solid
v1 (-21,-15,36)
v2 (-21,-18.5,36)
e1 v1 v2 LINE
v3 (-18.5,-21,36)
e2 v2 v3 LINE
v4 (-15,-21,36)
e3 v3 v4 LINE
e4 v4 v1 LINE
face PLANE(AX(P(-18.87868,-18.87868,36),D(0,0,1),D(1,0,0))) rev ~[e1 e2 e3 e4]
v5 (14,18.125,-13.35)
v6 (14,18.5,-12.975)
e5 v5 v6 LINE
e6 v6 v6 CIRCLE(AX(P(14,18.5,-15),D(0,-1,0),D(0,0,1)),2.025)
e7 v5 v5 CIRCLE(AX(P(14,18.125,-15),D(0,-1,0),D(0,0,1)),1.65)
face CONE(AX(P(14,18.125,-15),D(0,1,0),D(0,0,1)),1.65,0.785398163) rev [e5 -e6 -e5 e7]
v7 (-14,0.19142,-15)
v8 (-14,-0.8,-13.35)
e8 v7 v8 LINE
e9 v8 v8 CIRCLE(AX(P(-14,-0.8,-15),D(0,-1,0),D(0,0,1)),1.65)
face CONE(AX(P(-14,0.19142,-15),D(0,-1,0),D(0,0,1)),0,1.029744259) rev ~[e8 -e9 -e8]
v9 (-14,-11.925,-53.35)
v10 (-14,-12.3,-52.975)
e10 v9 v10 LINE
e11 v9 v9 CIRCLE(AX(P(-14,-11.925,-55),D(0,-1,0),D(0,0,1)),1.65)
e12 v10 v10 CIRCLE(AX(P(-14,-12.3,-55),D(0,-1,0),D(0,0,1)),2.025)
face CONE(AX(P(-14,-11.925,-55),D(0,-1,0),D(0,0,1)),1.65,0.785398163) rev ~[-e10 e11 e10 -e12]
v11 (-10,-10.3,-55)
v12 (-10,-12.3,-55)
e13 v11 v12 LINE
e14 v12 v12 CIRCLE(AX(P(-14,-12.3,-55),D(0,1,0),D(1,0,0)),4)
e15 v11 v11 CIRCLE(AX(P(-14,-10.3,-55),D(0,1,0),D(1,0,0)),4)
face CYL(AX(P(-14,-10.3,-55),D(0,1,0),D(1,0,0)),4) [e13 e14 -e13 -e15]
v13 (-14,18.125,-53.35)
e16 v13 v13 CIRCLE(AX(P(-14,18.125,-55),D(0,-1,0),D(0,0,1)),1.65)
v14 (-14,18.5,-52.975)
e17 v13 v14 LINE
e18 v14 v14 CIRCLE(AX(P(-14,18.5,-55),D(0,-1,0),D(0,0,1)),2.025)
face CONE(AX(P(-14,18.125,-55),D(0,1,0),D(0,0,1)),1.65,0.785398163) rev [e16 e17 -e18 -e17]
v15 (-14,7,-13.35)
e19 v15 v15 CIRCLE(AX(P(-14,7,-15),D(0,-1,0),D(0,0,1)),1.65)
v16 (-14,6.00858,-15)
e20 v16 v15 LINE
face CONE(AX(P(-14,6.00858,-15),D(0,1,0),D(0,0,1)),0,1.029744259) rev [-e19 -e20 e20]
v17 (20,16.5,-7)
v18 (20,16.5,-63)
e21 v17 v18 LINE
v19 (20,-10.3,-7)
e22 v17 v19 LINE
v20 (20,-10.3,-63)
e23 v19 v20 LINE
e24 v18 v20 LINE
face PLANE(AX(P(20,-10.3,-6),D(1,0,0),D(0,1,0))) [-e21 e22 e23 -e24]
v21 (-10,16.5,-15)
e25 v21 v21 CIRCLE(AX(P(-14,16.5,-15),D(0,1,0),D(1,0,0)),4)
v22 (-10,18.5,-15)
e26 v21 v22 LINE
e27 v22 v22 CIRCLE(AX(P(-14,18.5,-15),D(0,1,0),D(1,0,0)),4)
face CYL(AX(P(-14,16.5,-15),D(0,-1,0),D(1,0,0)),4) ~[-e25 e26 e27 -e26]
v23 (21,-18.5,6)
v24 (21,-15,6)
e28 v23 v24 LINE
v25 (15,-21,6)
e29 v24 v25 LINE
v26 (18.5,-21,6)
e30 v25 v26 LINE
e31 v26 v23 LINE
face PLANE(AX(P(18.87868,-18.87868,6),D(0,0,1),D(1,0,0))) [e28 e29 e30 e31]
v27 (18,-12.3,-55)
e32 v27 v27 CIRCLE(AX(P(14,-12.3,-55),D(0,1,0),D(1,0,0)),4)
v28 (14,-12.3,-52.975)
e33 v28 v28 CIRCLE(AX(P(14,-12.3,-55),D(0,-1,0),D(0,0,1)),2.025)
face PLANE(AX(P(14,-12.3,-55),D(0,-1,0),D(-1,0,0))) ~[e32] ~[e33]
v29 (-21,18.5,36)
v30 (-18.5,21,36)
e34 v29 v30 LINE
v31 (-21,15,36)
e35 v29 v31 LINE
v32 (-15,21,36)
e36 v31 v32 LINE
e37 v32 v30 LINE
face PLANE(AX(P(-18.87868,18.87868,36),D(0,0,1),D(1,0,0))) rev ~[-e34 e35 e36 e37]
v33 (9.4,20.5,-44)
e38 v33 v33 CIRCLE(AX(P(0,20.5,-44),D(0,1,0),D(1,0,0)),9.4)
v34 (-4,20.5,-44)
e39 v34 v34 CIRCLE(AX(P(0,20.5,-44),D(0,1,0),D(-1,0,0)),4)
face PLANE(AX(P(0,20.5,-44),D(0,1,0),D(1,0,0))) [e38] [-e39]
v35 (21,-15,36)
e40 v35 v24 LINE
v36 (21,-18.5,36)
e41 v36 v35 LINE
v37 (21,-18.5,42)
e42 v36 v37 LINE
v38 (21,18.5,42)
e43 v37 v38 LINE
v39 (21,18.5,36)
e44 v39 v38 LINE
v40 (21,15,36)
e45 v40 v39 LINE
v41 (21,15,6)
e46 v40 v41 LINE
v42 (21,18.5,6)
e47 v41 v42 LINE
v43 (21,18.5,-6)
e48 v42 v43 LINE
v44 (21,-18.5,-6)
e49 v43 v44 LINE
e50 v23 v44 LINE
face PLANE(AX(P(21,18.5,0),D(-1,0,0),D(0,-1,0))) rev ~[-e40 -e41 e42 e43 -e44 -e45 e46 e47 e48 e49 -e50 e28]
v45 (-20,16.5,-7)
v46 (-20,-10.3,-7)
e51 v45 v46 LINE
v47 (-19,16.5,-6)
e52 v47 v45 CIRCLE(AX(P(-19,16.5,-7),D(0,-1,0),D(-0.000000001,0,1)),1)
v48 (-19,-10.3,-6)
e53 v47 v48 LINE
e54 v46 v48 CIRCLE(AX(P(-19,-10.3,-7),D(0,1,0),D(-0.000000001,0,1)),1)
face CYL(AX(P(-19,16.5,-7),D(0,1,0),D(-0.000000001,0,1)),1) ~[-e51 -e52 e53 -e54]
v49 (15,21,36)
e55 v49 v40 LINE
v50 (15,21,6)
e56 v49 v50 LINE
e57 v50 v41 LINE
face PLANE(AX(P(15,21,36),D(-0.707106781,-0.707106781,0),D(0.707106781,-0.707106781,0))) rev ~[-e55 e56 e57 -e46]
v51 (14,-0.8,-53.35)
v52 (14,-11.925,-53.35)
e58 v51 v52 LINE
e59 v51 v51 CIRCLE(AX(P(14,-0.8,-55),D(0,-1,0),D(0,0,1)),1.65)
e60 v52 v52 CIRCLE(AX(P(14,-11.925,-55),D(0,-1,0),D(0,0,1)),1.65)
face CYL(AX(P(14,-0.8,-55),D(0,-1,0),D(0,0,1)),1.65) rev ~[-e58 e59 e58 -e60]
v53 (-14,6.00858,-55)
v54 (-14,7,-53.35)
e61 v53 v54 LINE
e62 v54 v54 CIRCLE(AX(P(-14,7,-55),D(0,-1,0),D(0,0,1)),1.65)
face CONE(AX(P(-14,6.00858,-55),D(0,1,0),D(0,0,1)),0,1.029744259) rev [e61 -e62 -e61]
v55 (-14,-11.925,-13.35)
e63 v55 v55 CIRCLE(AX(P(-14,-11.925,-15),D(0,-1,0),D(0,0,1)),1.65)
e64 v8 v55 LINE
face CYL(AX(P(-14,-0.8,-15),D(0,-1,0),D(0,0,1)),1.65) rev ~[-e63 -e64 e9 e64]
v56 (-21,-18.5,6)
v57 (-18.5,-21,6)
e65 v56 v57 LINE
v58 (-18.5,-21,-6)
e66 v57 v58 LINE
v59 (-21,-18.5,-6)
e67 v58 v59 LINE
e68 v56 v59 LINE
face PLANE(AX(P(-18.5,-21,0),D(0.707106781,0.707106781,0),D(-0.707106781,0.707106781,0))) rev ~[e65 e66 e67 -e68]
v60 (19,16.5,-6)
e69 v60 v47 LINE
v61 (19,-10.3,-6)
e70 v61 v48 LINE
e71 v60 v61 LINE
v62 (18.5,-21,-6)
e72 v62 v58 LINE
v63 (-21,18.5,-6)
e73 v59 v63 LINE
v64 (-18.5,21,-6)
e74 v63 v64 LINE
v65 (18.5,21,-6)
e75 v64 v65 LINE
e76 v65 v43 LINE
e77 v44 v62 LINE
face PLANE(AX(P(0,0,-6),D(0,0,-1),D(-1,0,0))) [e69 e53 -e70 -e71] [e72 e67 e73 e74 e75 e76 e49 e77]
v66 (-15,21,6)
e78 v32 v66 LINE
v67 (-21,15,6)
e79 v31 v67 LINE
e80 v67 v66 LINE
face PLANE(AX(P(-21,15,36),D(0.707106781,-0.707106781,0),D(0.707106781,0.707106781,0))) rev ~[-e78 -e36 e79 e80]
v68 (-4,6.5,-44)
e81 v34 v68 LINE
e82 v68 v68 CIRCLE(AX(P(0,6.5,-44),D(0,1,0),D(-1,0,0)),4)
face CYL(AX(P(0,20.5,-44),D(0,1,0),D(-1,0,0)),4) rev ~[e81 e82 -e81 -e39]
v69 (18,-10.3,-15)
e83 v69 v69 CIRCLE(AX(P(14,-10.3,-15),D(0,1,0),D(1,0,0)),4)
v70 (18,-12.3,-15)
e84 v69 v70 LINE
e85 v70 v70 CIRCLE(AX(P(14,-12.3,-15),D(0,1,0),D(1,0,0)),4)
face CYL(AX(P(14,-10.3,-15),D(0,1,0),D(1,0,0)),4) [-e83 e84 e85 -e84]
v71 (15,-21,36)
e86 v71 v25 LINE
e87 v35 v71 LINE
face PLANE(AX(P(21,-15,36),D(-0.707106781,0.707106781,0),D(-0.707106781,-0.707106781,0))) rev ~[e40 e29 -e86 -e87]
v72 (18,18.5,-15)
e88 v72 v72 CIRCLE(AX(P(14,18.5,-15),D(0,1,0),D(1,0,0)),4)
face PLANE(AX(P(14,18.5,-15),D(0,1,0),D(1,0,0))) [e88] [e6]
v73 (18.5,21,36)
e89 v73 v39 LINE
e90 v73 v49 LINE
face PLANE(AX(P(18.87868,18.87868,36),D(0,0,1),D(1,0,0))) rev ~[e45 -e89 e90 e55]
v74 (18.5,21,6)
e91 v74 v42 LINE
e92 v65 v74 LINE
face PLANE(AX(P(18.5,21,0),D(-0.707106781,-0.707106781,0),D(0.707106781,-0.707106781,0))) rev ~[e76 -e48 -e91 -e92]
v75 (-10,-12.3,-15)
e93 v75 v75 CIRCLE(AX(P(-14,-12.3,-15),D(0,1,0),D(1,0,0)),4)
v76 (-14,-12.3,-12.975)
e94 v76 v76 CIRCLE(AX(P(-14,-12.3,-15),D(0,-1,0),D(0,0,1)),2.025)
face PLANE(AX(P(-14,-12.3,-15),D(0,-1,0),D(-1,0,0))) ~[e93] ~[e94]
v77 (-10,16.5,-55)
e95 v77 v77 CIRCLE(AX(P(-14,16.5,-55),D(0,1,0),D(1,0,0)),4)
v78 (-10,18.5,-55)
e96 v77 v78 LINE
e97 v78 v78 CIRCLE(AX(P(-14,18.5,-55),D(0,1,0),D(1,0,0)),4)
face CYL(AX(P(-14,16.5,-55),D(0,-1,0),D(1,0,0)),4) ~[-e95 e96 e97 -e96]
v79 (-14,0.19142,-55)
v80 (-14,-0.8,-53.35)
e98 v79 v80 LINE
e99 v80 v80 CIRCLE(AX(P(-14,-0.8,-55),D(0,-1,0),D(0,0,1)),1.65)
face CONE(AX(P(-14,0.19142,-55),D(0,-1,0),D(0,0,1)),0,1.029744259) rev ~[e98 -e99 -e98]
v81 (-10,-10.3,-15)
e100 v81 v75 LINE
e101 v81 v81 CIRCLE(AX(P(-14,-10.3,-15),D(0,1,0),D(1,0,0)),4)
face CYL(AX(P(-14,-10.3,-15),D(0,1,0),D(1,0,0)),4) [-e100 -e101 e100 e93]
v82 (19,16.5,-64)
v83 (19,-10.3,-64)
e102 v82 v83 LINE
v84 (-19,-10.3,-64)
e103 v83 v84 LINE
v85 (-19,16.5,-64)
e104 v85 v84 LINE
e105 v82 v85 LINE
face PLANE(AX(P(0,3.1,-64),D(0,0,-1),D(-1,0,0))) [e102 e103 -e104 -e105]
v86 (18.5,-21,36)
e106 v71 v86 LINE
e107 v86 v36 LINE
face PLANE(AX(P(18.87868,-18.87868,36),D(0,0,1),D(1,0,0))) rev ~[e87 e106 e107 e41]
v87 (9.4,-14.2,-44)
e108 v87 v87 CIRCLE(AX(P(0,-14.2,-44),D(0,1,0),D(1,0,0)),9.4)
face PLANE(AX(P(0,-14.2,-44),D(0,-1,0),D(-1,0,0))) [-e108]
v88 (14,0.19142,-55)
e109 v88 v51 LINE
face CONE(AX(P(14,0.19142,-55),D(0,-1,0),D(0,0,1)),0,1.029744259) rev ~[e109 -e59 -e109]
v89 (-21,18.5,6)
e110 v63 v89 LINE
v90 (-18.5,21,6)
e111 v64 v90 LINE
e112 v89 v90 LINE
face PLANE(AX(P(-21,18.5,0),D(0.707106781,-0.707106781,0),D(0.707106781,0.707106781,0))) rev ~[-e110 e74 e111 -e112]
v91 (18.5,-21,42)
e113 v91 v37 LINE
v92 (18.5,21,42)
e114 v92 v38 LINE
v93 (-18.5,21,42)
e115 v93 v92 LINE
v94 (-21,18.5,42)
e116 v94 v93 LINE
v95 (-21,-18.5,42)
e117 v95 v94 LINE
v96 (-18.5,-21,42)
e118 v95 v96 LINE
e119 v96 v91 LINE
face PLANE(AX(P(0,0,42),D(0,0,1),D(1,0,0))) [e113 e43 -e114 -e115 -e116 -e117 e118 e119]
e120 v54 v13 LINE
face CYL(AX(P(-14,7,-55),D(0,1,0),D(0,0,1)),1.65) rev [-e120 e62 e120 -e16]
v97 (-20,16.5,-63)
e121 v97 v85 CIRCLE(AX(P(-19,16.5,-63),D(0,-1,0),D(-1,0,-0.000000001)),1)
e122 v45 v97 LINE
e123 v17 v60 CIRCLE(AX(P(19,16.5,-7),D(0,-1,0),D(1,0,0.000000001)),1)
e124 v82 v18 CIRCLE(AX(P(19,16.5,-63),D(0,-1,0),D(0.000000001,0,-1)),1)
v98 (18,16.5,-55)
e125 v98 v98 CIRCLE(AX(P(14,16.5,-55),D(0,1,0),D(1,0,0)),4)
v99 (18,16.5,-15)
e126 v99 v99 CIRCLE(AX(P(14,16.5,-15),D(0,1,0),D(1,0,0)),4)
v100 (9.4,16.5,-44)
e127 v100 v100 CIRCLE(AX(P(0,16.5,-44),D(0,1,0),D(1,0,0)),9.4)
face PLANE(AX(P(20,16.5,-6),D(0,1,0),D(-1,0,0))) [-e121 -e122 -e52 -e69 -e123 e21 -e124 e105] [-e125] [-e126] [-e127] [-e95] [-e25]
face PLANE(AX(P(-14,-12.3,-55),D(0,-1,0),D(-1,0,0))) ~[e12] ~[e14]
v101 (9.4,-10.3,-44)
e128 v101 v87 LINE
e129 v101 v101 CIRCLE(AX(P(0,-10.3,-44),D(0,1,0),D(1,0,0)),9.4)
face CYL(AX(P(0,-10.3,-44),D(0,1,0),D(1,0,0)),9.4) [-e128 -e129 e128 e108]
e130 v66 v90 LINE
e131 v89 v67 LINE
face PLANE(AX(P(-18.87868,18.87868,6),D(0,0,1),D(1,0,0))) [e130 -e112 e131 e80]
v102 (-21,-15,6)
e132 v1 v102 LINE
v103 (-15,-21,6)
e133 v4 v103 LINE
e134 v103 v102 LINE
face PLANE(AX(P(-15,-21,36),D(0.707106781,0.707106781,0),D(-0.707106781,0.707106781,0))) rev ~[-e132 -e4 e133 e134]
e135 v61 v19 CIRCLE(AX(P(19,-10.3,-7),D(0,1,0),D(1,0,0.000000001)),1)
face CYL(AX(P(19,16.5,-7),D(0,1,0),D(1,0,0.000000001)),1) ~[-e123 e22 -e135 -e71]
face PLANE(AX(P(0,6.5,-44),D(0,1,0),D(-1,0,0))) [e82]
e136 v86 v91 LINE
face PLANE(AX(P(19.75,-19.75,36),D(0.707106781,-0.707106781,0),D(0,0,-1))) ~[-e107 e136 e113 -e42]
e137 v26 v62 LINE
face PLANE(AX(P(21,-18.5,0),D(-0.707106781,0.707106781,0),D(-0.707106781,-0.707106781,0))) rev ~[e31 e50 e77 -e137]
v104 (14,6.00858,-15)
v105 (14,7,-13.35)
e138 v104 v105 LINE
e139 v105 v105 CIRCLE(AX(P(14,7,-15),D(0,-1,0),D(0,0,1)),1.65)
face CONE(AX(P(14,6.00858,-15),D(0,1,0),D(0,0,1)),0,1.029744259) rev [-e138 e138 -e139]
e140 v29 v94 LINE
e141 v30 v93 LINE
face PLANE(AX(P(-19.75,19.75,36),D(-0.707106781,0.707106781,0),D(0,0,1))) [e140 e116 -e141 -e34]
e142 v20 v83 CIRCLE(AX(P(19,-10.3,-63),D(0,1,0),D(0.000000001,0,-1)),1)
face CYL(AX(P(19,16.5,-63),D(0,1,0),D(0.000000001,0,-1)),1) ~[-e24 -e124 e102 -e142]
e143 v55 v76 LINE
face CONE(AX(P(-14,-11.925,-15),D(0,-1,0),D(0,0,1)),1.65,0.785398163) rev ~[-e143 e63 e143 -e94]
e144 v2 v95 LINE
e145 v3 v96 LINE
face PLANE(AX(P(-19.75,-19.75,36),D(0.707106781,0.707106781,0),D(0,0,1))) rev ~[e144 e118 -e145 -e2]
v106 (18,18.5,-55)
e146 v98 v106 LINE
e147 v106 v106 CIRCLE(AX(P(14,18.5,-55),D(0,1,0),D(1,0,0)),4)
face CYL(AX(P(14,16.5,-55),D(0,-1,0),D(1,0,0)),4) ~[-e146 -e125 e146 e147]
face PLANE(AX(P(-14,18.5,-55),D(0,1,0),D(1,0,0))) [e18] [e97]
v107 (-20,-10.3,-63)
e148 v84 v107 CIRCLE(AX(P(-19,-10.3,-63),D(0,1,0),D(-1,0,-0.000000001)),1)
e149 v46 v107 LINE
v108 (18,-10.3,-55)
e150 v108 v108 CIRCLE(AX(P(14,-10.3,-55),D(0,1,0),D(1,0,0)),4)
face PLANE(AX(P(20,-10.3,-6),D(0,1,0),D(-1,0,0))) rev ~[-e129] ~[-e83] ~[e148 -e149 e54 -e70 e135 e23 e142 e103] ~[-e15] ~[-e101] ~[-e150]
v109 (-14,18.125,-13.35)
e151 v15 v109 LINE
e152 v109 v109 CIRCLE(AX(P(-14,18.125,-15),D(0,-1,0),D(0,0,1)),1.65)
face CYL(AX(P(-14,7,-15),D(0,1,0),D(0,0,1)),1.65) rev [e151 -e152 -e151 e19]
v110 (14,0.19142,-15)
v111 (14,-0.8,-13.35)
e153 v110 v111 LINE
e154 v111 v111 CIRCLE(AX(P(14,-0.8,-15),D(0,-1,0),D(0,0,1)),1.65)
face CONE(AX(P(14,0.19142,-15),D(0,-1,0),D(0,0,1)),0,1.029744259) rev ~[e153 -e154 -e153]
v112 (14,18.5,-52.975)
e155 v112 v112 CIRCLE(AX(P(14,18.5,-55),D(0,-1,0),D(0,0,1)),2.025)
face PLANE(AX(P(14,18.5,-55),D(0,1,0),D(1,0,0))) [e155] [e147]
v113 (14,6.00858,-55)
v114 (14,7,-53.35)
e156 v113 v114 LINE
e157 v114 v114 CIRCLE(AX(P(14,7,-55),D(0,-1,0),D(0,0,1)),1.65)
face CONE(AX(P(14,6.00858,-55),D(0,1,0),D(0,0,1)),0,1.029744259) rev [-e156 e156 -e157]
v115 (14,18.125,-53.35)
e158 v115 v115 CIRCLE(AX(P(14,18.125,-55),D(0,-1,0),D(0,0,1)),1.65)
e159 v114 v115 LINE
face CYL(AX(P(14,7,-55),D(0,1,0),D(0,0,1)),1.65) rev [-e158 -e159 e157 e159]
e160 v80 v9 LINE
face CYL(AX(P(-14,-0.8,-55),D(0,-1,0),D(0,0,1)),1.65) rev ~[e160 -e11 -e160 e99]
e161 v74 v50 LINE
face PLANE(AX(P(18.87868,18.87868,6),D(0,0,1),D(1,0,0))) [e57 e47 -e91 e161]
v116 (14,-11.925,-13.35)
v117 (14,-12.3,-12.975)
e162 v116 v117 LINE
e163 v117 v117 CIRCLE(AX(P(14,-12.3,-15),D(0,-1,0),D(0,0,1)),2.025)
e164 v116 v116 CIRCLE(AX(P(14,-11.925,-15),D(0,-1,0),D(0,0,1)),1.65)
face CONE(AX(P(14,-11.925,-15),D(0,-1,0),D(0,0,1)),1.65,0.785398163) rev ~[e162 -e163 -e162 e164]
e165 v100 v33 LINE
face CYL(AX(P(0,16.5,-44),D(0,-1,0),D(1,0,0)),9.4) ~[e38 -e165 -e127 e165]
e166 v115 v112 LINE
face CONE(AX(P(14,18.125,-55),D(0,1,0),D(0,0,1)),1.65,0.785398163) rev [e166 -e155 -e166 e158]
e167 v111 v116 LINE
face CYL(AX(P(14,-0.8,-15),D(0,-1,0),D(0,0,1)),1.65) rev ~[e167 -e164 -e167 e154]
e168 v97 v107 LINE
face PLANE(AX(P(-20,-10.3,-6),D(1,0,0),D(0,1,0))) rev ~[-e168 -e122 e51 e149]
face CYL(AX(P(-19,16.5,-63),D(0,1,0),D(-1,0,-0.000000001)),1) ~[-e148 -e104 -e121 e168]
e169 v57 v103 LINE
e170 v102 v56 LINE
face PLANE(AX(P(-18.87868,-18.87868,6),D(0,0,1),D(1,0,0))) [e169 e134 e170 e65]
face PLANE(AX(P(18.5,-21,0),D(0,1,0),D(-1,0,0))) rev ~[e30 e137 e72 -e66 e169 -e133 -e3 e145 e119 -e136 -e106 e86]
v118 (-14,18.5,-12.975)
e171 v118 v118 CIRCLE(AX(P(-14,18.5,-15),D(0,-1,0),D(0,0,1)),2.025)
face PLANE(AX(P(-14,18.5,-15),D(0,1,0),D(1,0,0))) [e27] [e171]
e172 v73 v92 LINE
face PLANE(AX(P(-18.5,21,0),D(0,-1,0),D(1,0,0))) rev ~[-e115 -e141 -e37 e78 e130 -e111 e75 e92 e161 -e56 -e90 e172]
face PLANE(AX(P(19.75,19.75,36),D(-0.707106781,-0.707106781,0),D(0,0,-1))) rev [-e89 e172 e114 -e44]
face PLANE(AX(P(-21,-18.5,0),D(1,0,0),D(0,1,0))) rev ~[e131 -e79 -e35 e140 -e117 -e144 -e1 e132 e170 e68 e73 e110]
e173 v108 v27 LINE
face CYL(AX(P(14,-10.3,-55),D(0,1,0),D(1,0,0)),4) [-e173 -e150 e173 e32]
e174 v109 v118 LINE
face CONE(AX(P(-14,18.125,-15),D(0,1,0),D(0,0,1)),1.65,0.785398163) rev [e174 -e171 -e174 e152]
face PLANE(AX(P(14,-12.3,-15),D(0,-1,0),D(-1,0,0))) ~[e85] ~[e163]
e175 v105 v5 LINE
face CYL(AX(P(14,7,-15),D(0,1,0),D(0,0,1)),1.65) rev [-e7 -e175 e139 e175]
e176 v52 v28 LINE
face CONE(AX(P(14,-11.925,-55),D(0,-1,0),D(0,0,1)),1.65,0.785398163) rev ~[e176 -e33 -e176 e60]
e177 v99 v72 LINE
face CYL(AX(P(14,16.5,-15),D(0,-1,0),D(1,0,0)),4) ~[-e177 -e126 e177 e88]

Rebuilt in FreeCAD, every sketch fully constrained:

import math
import FreeCAD as App
import Part
import Sketcher
Q = App.Units.Quantity


def edges_at(feature, points):
    """Names of the edges that pass closest to the given points."""
    edges = feature.Shape.Edges
    near = lambda p: min(range(len(edges)), key=lambda i: edges[i].distToShape(Part.Vertex(*p))[0])
    return sorted({f"Edge{near(p) + 1}" for p in points})

doc = App.newDocument("Part")
params = doc.addObject("Spreadsheet::Sheet", "Params")
for row, (alias, value) in enumerate([
    ("sketch1_width", "42 mm"),
    ("pad1_length", "42 mm"),
    ("sketch2_width", "6 mm"),
    ("pocket1_length", "30 mm"),
    ("chamfer_size", "2.5 mm"),
    ("sketch3_width", "37 mm"),
    ("pad2_length", "6 mm"),
    ("sketch4_width", "40 mm"),
    ("sketch4_height", "26.8 mm"),
    ("pad3_length", "58 mm"),
    ("sketch5_radius", "1 mm"),
    ("pocket2_length", "58 mm"),
    ("sketch6_diameter", "18.8 mm"),
    ("pad4_length", "4 mm"),
    ("sketch7_diameter", "8 mm"),
    ("pad5_length", "2 mm"),
    ("sketch8_diameter", "8 mm"),
    ("pocket3_length", "14 mm"),
    ("groove_angle", "360 deg"),
    ("linearpattern_pitch", "28 mm"),
    ("linearpattern2_pitch", "48.826222 mm"),
    ("linearpattern3_pitch", "40 mm"),
    ("groove2_angle", "360 deg"),
    ("groove3_angle", "360 deg"),
    ("groove4_angle", "360 deg"),
    ("sketch13_diameter", "18.8 mm"),
    ("pocket4_length", "0.1 mm"),
], start=1):
    params.set(f"A{row}", alias)
    params.set(f"B{row}", "=" + value)
    params.setAlias(f"B{row}", alias)

body = doc.addObject("PartDesign::Body", "Body")

# Sketch on XY plane
sketch1 = body.newObject("Sketcher::SketchObject", "Sketch")
sketch1.AttachmentSupport = (doc.getObject("XY_Plane"), [""])
sketch1.MapMode = "FlatFace"
sketch1.addGeometry(Part.LineSegment(App.Vector(-21, 21, 0), App.Vector(-21, -21, 0)), False)
sketch1.addGeometry(Part.LineSegment(App.Vector(-21, -21, 0), App.Vector(21, -21, 0)), False)
sketch1.addGeometry(Part.LineSegment(App.Vector(21, -21, 0), App.Vector(21, 21, 0)), False)
sketch1.addGeometry(Part.LineSegment(App.Vector(21, 21, 0), App.Vector(-21, 21, 0)), False)
sketch1.addConstraint(Sketcher.Constraint("Coincident", 0, 2, 1, 1))
sketch1.addConstraint(Sketcher.Constraint("Coincident", 1, 2, 2, 1))
sketch1.addConstraint(Sketcher.Constraint("Coincident", 2, 2, 3, 1))
sketch1.addConstraint(Sketcher.Constraint("Coincident", 3, 2, 0, 1))
sketch1.addConstraint(Sketcher.Constraint("Vertical", 0))
sketch1.addConstraint(Sketcher.Constraint("Horizontal", 1))
sketch1.addConstraint(Sketcher.Constraint("Vertical", 2))
sketch1.addConstraint(Sketcher.Constraint("Horizontal", 3))
sketch1.addConstraint(Sketcher.Constraint("Symmetric", 0, 2, 2, 2, -1, 1))
sketch1.addConstraint(Sketcher.Constraint("Equal", 3, 0))
sketch1.addConstraint(Sketcher.Constraint("DistanceX", 1, 1, 1, 2, Q("42 mm")))
sketch1.setExpression("Constraints[10]", "Params.sketch1_width")
pad1 = body.newObject("PartDesign::Pad", "Pad")
pad1.Profile = sketch1
pad1.setExpression("Length", "Params.pad1_length")

# Sketch on XY plane
sketch2 = body.newObject("Sketcher::SketchObject", "Sketch001")
sketch2.AttachmentSupport = (doc.getObject("XY_Plane"), [""])
sketch2.MapMode = "FlatFace"
sketch2.AttachmentOffset = App.Placement(App.Vector(0, 0, 36), App.Rotation())
sketch2.addGeometry(Part.LineSegment(App.Vector(-21, -21, 0), App.Vector(-15, -21, 0)), False)
sketch2.addGeometry(Part.LineSegment(App.Vector(-15, -21, 0), App.Vector(-21, -15, 0)), False)
sketch2.addGeometry(Part.LineSegment(App.Vector(-21, -15, 0), App.Vector(-21, -21, 0)), False)
sketch2.addGeometry(Part.LineSegment(App.Vector(-21, 21, 0), App.Vector(-21, 15, 0)), False)
sketch2.addGeometry(Part.LineSegment(App.Vector(-21, 15, 0), App.Vector(-15, 21, 0)), False)
sketch2.addGeometry(Part.LineSegment(App.Vector(-15, 21, 0), App.Vector(-21, 21, 0)), False)
sketch2.addGeometry(Part.LineSegment(App.Vector(21, 21, 0), App.Vector(15, 21, 0)), False)
sketch2.addGeometry(Part.LineSegment(App.Vector(15, 21, 0), App.Vector(21, 15, 0)), False)
sketch2.addGeometry(Part.LineSegment(App.Vector(21, 15, 0), App.Vector(21, 21, 0)), False)
sketch2.addGeometry(Part.LineSegment(App.Vector(21, -21, 0), App.Vector(21, -15, 0)), False)
sketch2.addGeometry(Part.LineSegment(App.Vector(21, -15, 0), App.Vector(15, -21, 0)), False)
sketch2.addGeometry(Part.LineSegment(App.Vector(15, -21, 0), App.Vector(21, -21, 0)), False)
sketch2.addConstraint(Sketcher.Constraint("Coincident", 0, 2, 1, 1))
sketch2.addConstraint(Sketcher.Constraint("Coincident", 1, 2, 2, 1))
sketch2.addConstraint(Sketcher.Constraint("Coincident", 2, 2, 0, 1))
sketch2.addConstraint(Sketcher.Constraint("Coincident", 3, 2, 4, 1))
sketch2.addConstraint(Sketcher.Constraint("Coincident", 4, 2, 5, 1))
sketch2.addConstraint(Sketcher.Constraint("Coincident", 5, 2, 3, 1))
sketch2.addConstraint(Sketcher.Constraint("Coincident", 6, 2, 7, 1))
sketch2.addConstraint(Sketcher.Constraint("Coincident", 7, 2, 8, 1))
sketch2.addConstraint(Sketcher.Constraint("Coincident", 8, 2, 6, 1))
sketch2.addConstraint(Sketcher.Constraint("Coincident", 9, 2, 10, 1))
sketch2.addConstraint(Sketcher.Constraint("Coincident", 10, 2, 11, 1))
sketch2.addConstraint(Sketcher.Constraint("Coincident", 11, 2, 9, 1))
sketch2.addConstraint(Sketcher.Constraint("Horizontal", 0))
sketch2.addConstraint(Sketcher.Constraint("Vertical", 2))
sketch2.addConstraint(Sketcher.Constraint("Vertical", 3))
sketch2.addConstraint(Sketcher.Constraint("Horizontal", 5))
sketch2.addConstraint(Sketcher.Constraint("Horizontal", 6))
sketch2.addConstraint(Sketcher.Constraint("Vertical", 8))
sketch2.addConstraint(Sketcher.Constraint("Vertical", 9))
sketch2.addConstraint(Sketcher.Constraint("Horizontal", 11))
sketch2.addConstraint(Sketcher.Constraint("Symmetric", 0, 2, 6, 2, -1, 1))
sketch2.addConstraint(Sketcher.Constraint("Symmetric", 1, 2, 7, 2, -1, 1))
sketch2.addConstraint(Sketcher.Constraint("Symmetric", 3, 2, 9, 2, -1, 1))
sketch2.addConstraint(Sketcher.Constraint("Symmetric", 4, 2, 10, 2, -1, 1))
sketch2.addConstraint(Sketcher.Constraint("Symmetric", 4, 2, 6, 2, -2))
sketch2.addConstraint(Sketcher.Constraint("Symmetric", 3, 2, 7, 2, -2))
sketch2.addConstraint(Sketcher.Constraint("Perpendicular", 1, 4))
sketch2.addConstraint(Sketcher.Constraint("DistanceX", 0, 1, 0, 2, Q("6 mm")))
sketch2.addConstraint(Sketcher.Constraint("DistanceX", 0, 2, -1, 1, Q("15 mm")))
sketch2.addConstraint(Sketcher.Constraint("DistanceY", 0, 2, -1, 1, Q("21 mm")))
sketch2.setExpression("Constraints[27]", "Params.sketch2_width")
pocket1 = body.newObject("PartDesign::Pocket", "Pocket")
pocket1.Profile = sketch2
pocket1.setExpression("Length", "Params.pocket1_length")
doc.recompute()

chamfer = body.newObject("PartDesign::Chamfer", "Chamfer")
chamfer.Base = (pocket1, edges_at(pocket1, [
    (21, -21, 3),
    (-21, -21, 3),
    (21, 21, 3),
    (-21, 21, 3),
    (21, -21, 39),
    (-21, -21, 39),
    (-21, 21, 39),
    (21, 21, 39),
]))
chamfer.setExpression("Size", "Params.chamfer_size")

# Sketch on XY plane
sketch3 = body.newObject("Sketcher::SketchObject", "Sketch002")
sketch3.AttachmentSupport = (doc.getObject("XY_Plane"), [""])
sketch3.MapMode = "FlatFace"
sketch3.addGeometry(Part.LineSegment(App.Vector(18.5, 21, 0), App.Vector(21, 18.5, 0)), False)
sketch3.addGeometry(Part.LineSegment(App.Vector(21, 18.5, 0), App.Vector(21, -18.5, 0)), False)
sketch3.addGeometry(Part.LineSegment(App.Vector(21, -18.5, 0), App.Vector(18.5, -21, 0)), False)
sketch3.addGeometry(Part.LineSegment(App.Vector(18.5, -21, 0), App.Vector(-18.5, -21, 0)), False)
sketch3.addGeometry(Part.LineSegment(App.Vector(-18.5, -21, 0), App.Vector(-21, -18.5, 0)), False)
sketch3.addGeometry(Part.LineSegment(App.Vector(-21, -18.5, 0), App.Vector(-21, 18.5, 0)), False)
sketch3.addGeometry(Part.LineSegment(App.Vector(-21, 18.5, 0), App.Vector(-18.5, 21, 0)), False)
sketch3.addGeometry(Part.LineSegment(App.Vector(-18.5, 21, 0), App.Vector(18.5, 21, 0)), False)
sketch3.addConstraint(Sketcher.Constraint("Coincident", 0, 2, 1, 1))
sketch3.addConstraint(Sketcher.Constraint("Coincident", 1, 2, 2, 1))
sketch3.addConstraint(Sketcher.Constraint("Coincident", 2, 2, 3, 1))
sketch3.addConstraint(Sketcher.Constraint("Coincident", 3, 2, 4, 1))
sketch3.addConstraint(Sketcher.Constraint("Coincident", 4, 2, 5, 1))
sketch3.addConstraint(Sketcher.Constraint("Coincident", 5, 2, 6, 1))
sketch3.addConstraint(Sketcher.Constraint("Coincident", 6, 2, 7, 1))
sketch3.addConstraint(Sketcher.Constraint("Coincident", 7, 2, 0, 1))
sketch3.addConstraint(Sketcher.Constraint("Vertical", 1))
sketch3.addConstraint(Sketcher.Constraint("Horizontal", 3))
sketch3.addConstraint(Sketcher.Constraint("Vertical", 5))
sketch3.addConstraint(Sketcher.Constraint("Horizontal", 7))
sketch3.addConstraint(Sketcher.Constraint("Symmetric", 0, 2, 4, 2, -1, 1))
sketch3.addConstraint(Sketcher.Constraint("Symmetric", 2, 2, 6, 2, -1, 1))
sketch3.addConstraint(Sketcher.Constraint("Perpendicular", 0, 2))
sketch3.addConstraint(Sketcher.Constraint("Perpendicular", 2, 4))
sketch3.addConstraint(Sketcher.Constraint("Perpendicular", 4, 6))
sketch3.addConstraint(Sketcher.Constraint("Horizontal", 1, 2, 4, 2))
sketch3.addConstraint(Sketcher.Constraint("Vertical", 3, 2, 6, 2))
sketch3.addConstraint(Sketcher.Constraint("Equal", 7, 1))
sketch3.addConstraint(Sketcher.Constraint("DistanceX", 3, 2, 3, 1, Q("37 mm")))
sketch3.addConstraint(Sketcher.Constraint("DistanceX", -1, 1, 0, 2, Q("21 mm")))
sketch3.setExpression("Constraints[20]", "Params.sketch3_width")
pad2 = body.newObject("PartDesign::Pad", "Pad001")
pad2.Profile = sketch3
pad2.setExpression("Length", "Params.pad2_length")
pad2.Reversed = True

# Sketch on XY plane
sketch4 = body.newObject("Sketcher::SketchObject", "Sketch003")
sketch4.AttachmentSupport = (doc.getObject("XY_Plane"), [""])
sketch4.MapMode = "FlatFace"
sketch4.AttachmentOffset = App.Placement(App.Vector(0, 0, -6), App.Rotation())
sketch4.addGeometry(Part.LineSegment(App.Vector(20, 16, 0), App.Vector(20, -10, 0)), False)
sketch4.addGeometry(Part.LineSegment(App.Vector(20, -10, 0), App.Vector(-20, -10, 0)), False)
sketch4.addGeometry(Part.LineSegment(App.Vector(-20, -10, 0), App.Vector(-20, 16, 0)), False)
sketch4.addGeometry(Part.LineSegment(App.Vector(-20, 16, 0), App.Vector(20, 16, 0)), False)
sketch4.addConstraint(Sketcher.Constraint("Coincident", 0, 2, 1, 1))
sketch4.addConstraint(Sketcher.Constraint("Coincident", 1, 2, 2, 1))
sketch4.addConstraint(Sketcher.Constraint("Coincident", 2, 2, 3, 1))
sketch4.addConstraint(Sketcher.Constraint("Coincident", 3, 2, 0, 1))
sketch4.addConstraint(Sketcher.Constraint("Vertical", 0))
sketch4.addConstraint(Sketcher.Constraint("Horizontal", 1))
sketch4.addConstraint(Sketcher.Constraint("Vertical", 2))
sketch4.addConstraint(Sketcher.Constraint("Horizontal", 3))
sketch4.addConstraint(Sketcher.Constraint("DistanceX", 1, 2, 1, 1, Q("40 mm")))
sketch4.addConstraint(Sketcher.Constraint("DistanceY", 0, 2, 0, 1, Q("26.8 mm")))
sketch4.addConstraint(Sketcher.Constraint("DistanceX", -1, 1, 0, 2, Q("20 mm")))
sketch4.addConstraint(Sketcher.Constraint("DistanceY", 0, 2, -1, 1, Q("10.3 mm")))
sketch4.setExpression("Constraints[8]", "Params.sketch4_width")
sketch4.setExpression("Constraints[9]", "Params.sketch4_height")
pad3 = body.newObject("PartDesign::Pad", "Pad002")
pad3.Profile = sketch4
pad3.setExpression("Length", "Params.pad3_length")
pad3.Reversed = True

# Sketch on XZ plane
sketch5 = body.newObject("Sketcher::SketchObject", "Sketch004")
sketch5.AttachmentSupport = (doc.getObject("XZ_Plane"), [""])
sketch5.MapMode = "FlatFace"
sketch5.AttachmentOffset = App.Placement(App.Vector(0, 0, -16.5), App.Rotation())
sketch5.addGeometry(Part.ArcOfCircle(Part.Circle(App.Vector(-19, -63, 0), App.Vector(0, 0, 1), 1), math.radians(-180), math.radians(-90)), False)
sketch5.addGeometry(Part.LineSegment(App.Vector(-19, -64, 0), App.Vector(-20, -64, 0)), False)
sketch5.addGeometry(Part.LineSegment(App.Vector(-20, -64, 0), App.Vector(-20, -63, 0)), False)
sketch5.addGeometry(Part.LineSegment(App.Vector(20, -64, 0), App.Vector(19, -64, 0)), False)
sketch5.addGeometry(Part.ArcOfCircle(Part.Circle(App.Vector(19, -63, 0), App.Vector(0, 0, 1), 1), math.radians(-90), math.radians(0)), False)
sketch5.addGeometry(Part.LineSegment(App.Vector(20, -63, 0), App.Vector(20, -64, 0)), False)
sketch5.addGeometry(Part.ArcOfCircle(Part.Circle(App.Vector(-19, -7, 0), App.Vector(0, 0, 1), 1), math.radians(90), math.radians(180)), False)
sketch5.addGeometry(Part.LineSegment(App.Vector(-20, -7, 0), App.Vector(-20, -6, 0)), False)
sketch5.addGeometry(Part.LineSegment(App.Vector(-20, -6, 0), App.Vector(-19, -6, 0)), False)
sketch5.addGeometry(Part.LineSegment(App.Vector(20, -6, 0), App.Vector(20, -7, 0)), False)
sketch5.addGeometry(Part.ArcOfCircle(Part.Circle(App.Vector(19, -7, 0), App.Vector(0, 0, 1), 1), math.radians(0), math.radians(90)), False)
sketch5.addGeometry(Part.LineSegment(App.Vector(19, -6, 0), App.Vector(20, -6, 0)), False)
sketch5.addConstraint(Sketcher.Constraint("Tangent", 0, 2, 1, 1))
sketch5.addConstraint(Sketcher.Constraint("Coincident", 1, 2, 2, 1))
sketch5.addConstraint(Sketcher.Constraint("Tangent", 2, 2, 0, 1))
sketch5.addConstraint(Sketcher.Constraint("Tangent", 3, 2, 4, 1))
sketch5.addConstraint(Sketcher.Constraint("Tangent", 4, 2, 5, 1))
sketch5.addConstraint(Sketcher.Constraint("Coincident", 5, 2, 3, 1))
sketch5.addConstraint(Sketcher.Constraint("Tangent", 6, 2, 7, 1))
sketch5.addConstraint(Sketcher.Constraint("Coincident", 7, 2, 8, 1))
sketch5.addConstraint(Sketcher.Constraint("Tangent", 8, 2, 6, 1))
sketch5.addConstraint(Sketcher.Constraint("Tangent", 9, 2, 10, 1))
sketch5.addConstraint(Sketcher.Constraint("Tangent", 10, 2, 11, 1))
sketch5.addConstraint(Sketcher.Constraint("Coincident", 11, 2, 9, 1))
sketch5.addConstraint(Sketcher.Constraint("Horizontal", 1))
sketch5.addConstraint(Sketcher.Constraint("Vertical", 2))
sketch5.addConstraint(Sketcher.Constraint("Horizontal", 3))
sketch5.addConstraint(Sketcher.Constraint("Vertical", 5))
sketch5.addConstraint(Sketcher.Constraint("Vertical", 7))
sketch5.addConstraint(Sketcher.Constraint("Horizontal", 8))
sketch5.addConstraint(Sketcher.Constraint("Vertical", 9))
sketch5.addConstraint(Sketcher.Constraint("Horizontal", 11))
sketch5.addConstraint(Sketcher.Constraint("Equal", 0, 4))
sketch5.addConstraint(Sketcher.Constraint("Equal", 4, 6))
sketch5.addConstraint(Sketcher.Constraint("Equal", 6, 10))
sketch5.addConstraint(Sketcher.Constraint("Symmetric", 0, 3, 4, 3, -2))
sketch5.addConstraint(Sketcher.Constraint("Symmetric", 6, 3, 10, 3, -2))
sketch5.addConstraint(Sketcher.Constraint("Vertical", 0, 3, 6, 3))
sketch5.addConstraint(Sketcher.Constraint("Radius", 0, Q("1 mm")))
sketch5.addConstraint(Sketcher.Constraint("DistanceX", 0, 3, -1, 1, Q("19 mm")))
sketch5.addConstraint(Sketcher.Constraint("DistanceY", 0, 3, -1, 1, Q("63 mm")))
sketch5.addConstraint(Sketcher.Constraint("DistanceY", 6, 3, -1, 1, Q("7 mm")))
sketch5.setExpression("Constraints[26]", "Params.sketch5_radius")
pocket2 = body.newObject("PartDesign::Pocket", "Pocket001")
pocket2.Profile = sketch5
pocket2.setExpression("Length", "Params.pocket2_length")
pocket2.Reversed = True

# Sketch on XZ plane
sketch6 = body.newObject("Sketcher::SketchObject", "Sketch005")
sketch6.AttachmentSupport = (doc.getObject("XZ_Plane"), [""])
sketch6.MapMode = "FlatFace"
sketch6.AttachmentOffset = App.Placement(App.Vector(0, 0, -16.5), App.Rotation())
sketch6.addGeometry(Part.Circle(App.Vector(0, -44, 0), App.Vector(0, 0, 1), 9), False)
sketch6.addConstraint(Sketcher.Constraint("PointOnObject", 0, 3, -2))
sketch6.addConstraint(Sketcher.Constraint("Diameter", 0, Q("18.8 mm")))
sketch6.addConstraint(Sketcher.Constraint("DistanceY", 0, 3, -1, 1, Q("44 mm")))
sketch6.setExpression("Constraints[1]", "Params.sketch6_diameter")
pad4 = body.newObject("PartDesign::Pad", "Pad003")
pad4.Profile = sketch6
pad4.setExpression("Length", "Params.pad4_length")
pad4.Reversed = True

# Sketch on XZ plane
sketch7 = body.newObject("Sketcher::SketchObject", "Sketch006")
sketch7.AttachmentSupport = (doc.getObject("XZ_Plane"), [""])
sketch7.MapMode = "FlatFace"
sketch7.AttachmentOffset = App.Placement(App.Vector(0, 0, -16.5), App.Rotation())
sketch7.addGeometry(Part.Circle(App.Vector(14, -55, 0), App.Vector(0, 0, 1), 4), False)
sketch7.addGeometry(Part.Circle(App.Vector(-14, -55, 0), App.Vector(0, 0, 1), 4), False)
sketch7.addGeometry(Part.Circle(App.Vector(-14, -15, 0), App.Vector(0, 0, 1), 4), False)
sketch7.addGeometry(Part.Circle(App.Vector(14, -15, 0), App.Vector(0, 0, 1), 4), False)
sketch7.addConstraint(Sketcher.Constraint("Equal", 0, 1))
sketch7.addConstraint(Sketcher.Constraint("Equal", 1, 2))
sketch7.addConstraint(Sketcher.Constraint("Equal", 2, 3))
sketch7.addConstraint(Sketcher.Constraint("Symmetric", 0, 3, 1, 3, -2))
sketch7.addConstraint(Sketcher.Constraint("Symmetric", 2, 3, 3, 3, -2))
sketch7.addConstraint(Sketcher.Constraint("Vertical", 1, 3, 2, 3))
sketch7.addConstraint(Sketcher.Constraint("Diameter", 0, Q("8 mm")))
sketch7.addConstraint(Sketcher.Constraint("DistanceX", -1, 1, 0, 3, Q("14 mm")))
sketch7.addConstraint(Sketcher.Constraint("DistanceY", 0, 3, -1, 1, Q("55 mm")))
sketch7.addConstraint(Sketcher.Constraint("DistanceY", 2, 3, -1, 1, Q("15 mm")))
sketch7.setExpression("Constraints[6]", "Params.sketch7_diameter")
pad5 = body.newObject("PartDesign::Pad", "Pad004")
pad5.Profile = sketch7
pad5.setExpression("Length", "Params.pad5_length")
pad5.Reversed = True

# Sketch on XZ plane
sketch8 = body.newObject("Sketcher::SketchObject", "Sketch007")
sketch8.AttachmentSupport = (doc.getObject("XZ_Plane"), [""])
sketch8.MapMode = "FlatFace"
sketch8.AttachmentOffset = App.Placement(App.Vector(0, 0, -20.5), App.Rotation())
sketch8.addGeometry(Part.Circle(App.Vector(0, -44, 0), App.Vector(0, 0, 1), 4), False)
sketch8.addConstraint(Sketcher.Constraint("PointOnObject", 0, 3, -2))
sketch8.addConstraint(Sketcher.Constraint("Diameter", 0, Q("8 mm")))
sketch8.addConstraint(Sketcher.Constraint("DistanceY", 0, 3, -1, 1, Q("44 mm")))
sketch8.setExpression("Constraints[1]", "Params.sketch8_diameter")
pocket3 = body.newObject("PartDesign::Pocket", "Pocket002")
pocket3.Profile = sketch8
pocket3.setExpression("Length", "Params.pocket3_length")
pocket3.Reversed = True

# Sketch on YZ plane
sketch9 = body.newObject("Sketcher::SketchObject", "Sketch008")
sketch9.AttachmentSupport = (doc.getObject("YZ_Plane"), [""])
sketch9.MapMode = "FlatFace"
sketch9.AttachmentOffset = App.Placement(App.Vector(0, 0, -14), App.Rotation())
sketch9.addGeometry(Part.LineSegment(App.Vector(6, -55, 0), App.Vector(18.5, -55, 0)), False)
sketch9.addGeometry(Part.LineSegment(App.Vector(18.5, -55, 0), App.Vector(18.5, -53, 0)), False)
sketch9.addGeometry(Part.LineSegment(App.Vector(18.5, -53, 0), App.Vector(18.1, -53.4, 0)), False)
sketch9.addGeometry(Part.LineSegment(App.Vector(18.1, -53.4, 0), App.Vector(7, -53.4, 0)), False)
sketch9.addGeometry(Part.LineSegment(App.Vector(7, -53.4, 0), App.Vector(6, -55, 0)), False)
sketch9.addGeometry(Part.LineSegment(App.Vector(18.5, -55, 0), App.Vector(6, -55, 0)), True)  # axis
sketch9.addConstraint(Sketcher.Constraint("Coincident", 0, 2, 1, 1))
sketch9.addConstraint(Sketcher.Constraint("Coincident", 1, 2, 2, 1))
sketch9.addConstraint(Sketcher.Constraint("Coincident", 2, 2, 3, 1))
sketch9.addConstraint(Sketcher.Constraint("Coincident", 3, 2, 4, 1))
sketch9.addConstraint(Sketcher.Constraint("Coincident", 4, 2, 0, 1))
sketch9.addConstraint(Sketcher.Constraint("Horizontal", 0))
sketch9.addConstraint(Sketcher.Constraint("Vertical", 1))
sketch9.addConstraint(Sketcher.Constraint("Horizontal", 3))
sketch9.addConstraint(Sketcher.Constraint("Horizontal", 5))
sketch9.addConstraint(Sketcher.Constraint("Coincident", 5, 1, 0, 2))
sketch9.addConstraint(Sketcher.Constraint("Equal", 0, 5))
sketch9.addConstraint(Sketcher.Constraint("Angle", 2, Q("-135 deg")))
sketch9.addConstraint(Sketcher.Constraint("Angle", 4, Q("-121 deg")))
sketch9.addConstraint(Sketcher.Constraint("DistanceY", 0, 2, -1, 1, Q("55 mm")))
sketch9.addConstraint(Sketcher.Constraint("DistanceX", -1, 1, 3, 2, Q("7 mm")))
sketch9.addConstraint(Sketcher.Constraint("DistanceX", -1, 1, 0, 2, Q("18.5 mm")))
sketch9.addConstraint(Sketcher.Constraint("DistanceX", 3, 2, 3, 1, Q("11.125 mm")))
sketch9.addConstraint(Sketcher.Constraint("DistanceY", 1, 1, 1, 2, Q("2.025 mm")))
groove = body.newObject("PartDesign::Groove", "Groove")
groove.Profile = sketch9
groove.ReferenceAxis = (sketch9, ["Axis0"])
groove.setExpression("Angle", "Params.groove_angle")
doc.recompute()

linearpattern = body.newObject("PartDesign::LinearPattern", "LinearPattern")
linearpattern.Originals = [groove]
linearpattern.Direction = (doc.getObject("X_Axis"), [""])
linearpattern.Mode = "offset"
linearpattern.setExpression("Offset", "Params.linearpattern_pitch")
linearpattern.Occurrences = 2
body.Tip = linearpattern
doc.recompute()

datumline = body.newObject("PartDesign::Line", "DatumLine")
datumline.Placement = App.Placement(App.Vector(0, 0, 0), App.Rotation(App.Vector(0, 0, 1), App.Vector(0.573462344, 0, 0.819231921)))
linearpattern2 = body.newObject("PartDesign::LinearPattern", "LinearPattern001")
linearpattern2.Originals = [groove]
linearpattern2.Direction = (datumline, [""])
linearpattern2.Mode = "offset"
linearpattern2.setExpression("Offset", "Params.linearpattern2_pitch")
linearpattern2.Occurrences = 2
body.Tip = linearpattern2
doc.recompute()

linearpattern3 = body.newObject("PartDesign::LinearPattern", "LinearPattern002")
linearpattern3.Originals = [groove]
linearpattern3.Direction = (doc.getObject("Z_Axis"), [""])
linearpattern3.Mode = "offset"
linearpattern3.setExpression("Offset", "Params.linearpattern3_pitch")
linearpattern3.Occurrences = 2
body.Tip = linearpattern3
doc.recompute()

datumplane = body.newObject("PartDesign::Plane", "DatumPlane")
datumplane.AttachmentSupport = (doc.getObject("XZ_Plane"), [""])
datumplane.MapMode = "FlatFace"
datumplane.AttachmentOffset = App.Placement(App.Vector(0, 0, -3.1), App.Rotation())
mirrored = body.newObject("PartDesign::Mirrored", "Mirrored")
mirrored.Originals = [pad4, pad5, groove]
mirrored.MirrorPlane = (datumplane, [""])
body.Tip = mirrored

# Sketch on YZ plane
sketch10 = body.newObject("Sketcher::SketchObject", "Sketch009")
sketch10.AttachmentSupport = (doc.getObject("YZ_Plane"), [""])
sketch10.MapMode = "FlatFace"
sketch10.AttachmentOffset = App.Placement(App.Vector(0, 0, 14), App.Rotation())
sketch10.addGeometry(Part.LineSegment(App.Vector(-12.3, -55, 0), App.Vector(0.2, -55, 0)), False)
sketch10.addGeometry(Part.LineSegment(App.Vector(0.2, -55, 0), App.Vector(-0.8, -53.4, 0)), False)
sketch10.addGeometry(Part.LineSegment(App.Vector(-0.8, -53.4, 0), App.Vector(-11.9, -53.4, 0)), False)
sketch10.addGeometry(Part.LineSegment(App.Vector(-11.9, -53.4, 0), App.Vector(-12.3, -53, 0)), False)
sketch10.addGeometry(Part.LineSegment(App.Vector(-12.3, -53, 0), App.Vector(-12.3, -55, 0)), False)
sketch10.addGeometry(Part.LineSegment(App.Vector(0.2, -55, 0), App.Vector(-12.3, -55, 0)), True)  # axis
sketch10.addConstraint(Sketcher.Constraint("Coincident", 0, 2, 1, 1))
sketch10.addConstraint(Sketcher.Constraint("Coincident", 1, 2, 2, 1))
sketch10.addConstraint(Sketcher.Constraint("Coincident", 2, 2, 3, 1))
sketch10.addConstraint(Sketcher.Constraint("Coincident", 3, 2, 4, 1))
sketch10.addConstraint(Sketcher.Constraint("Coincident", 4, 2, 0, 1))
sketch10.addConstraint(Sketcher.Constraint("Horizontal", 0))
sketch10.addConstraint(Sketcher.Constraint("Horizontal", 2))
sketch10.addConstraint(Sketcher.Constraint("Vertical", 4))
sketch10.addConstraint(Sketcher.Constraint("Horizontal", 5))
sketch10.addConstraint(Sketcher.Constraint("Coincident", 5, 1, 0, 2))
sketch10.addConstraint(Sketcher.Constraint("Vertical", 3, 2, 5, 2))
sketch10.addConstraint(Sketcher.Constraint("Angle", 1, Q("121 deg")))
sketch10.addConstraint(Sketcher.Constraint("Angle", 3, Q("135 deg")))
sketch10.addConstraint(Sketcher.Constraint("DistanceY", 0, 2, -1, 1, Q("55 mm")))
sketch10.addConstraint(Sketcher.Constraint("DistanceX", 1, 2, -1, 1, Q("0.8 mm")))
sketch10.addConstraint(Sketcher.Constraint("DistanceX", 3, 2, -1, 1, Q("12.3 mm")))
sketch10.addConstraint(Sketcher.Constraint("DistanceX", 2, 2, 2, 1, Q("11.125 mm")))
sketch10.addConstraint(Sketcher.Constraint("DistanceY", 4, 2, 4, 1, Q("2.025 mm")))
groove2 = body.newObject("PartDesign::Groove", "Groove001")
groove2.Profile = sketch10
groove2.ReferenceAxis = (sketch10, ["Axis0"])
groove2.setExpression("Angle", "Params.groove2_angle")

# Sketch on YZ plane
sketch11 = body.newObject("Sketcher::SketchObject", "Sketch010")
sketch11.AttachmentSupport = (doc.getObject("YZ_Plane"), [""])
sketch11.MapMode = "FlatFace"
sketch11.AttachmentOffset = App.Placement(App.Vector(0, 0, 14), App.Rotation())
sketch11.addGeometry(Part.LineSegment(App.Vector(-12.3, -15, 0), App.Vector(0.2, -15, 0)), False)
sketch11.addGeometry(Part.LineSegment(App.Vector(0.2, -15, 0), App.Vector(-0.8, -13.3, 0)), False)
sketch11.addGeometry(Part.LineSegment(App.Vector(-0.8, -13.3, 0), App.Vector(-11.9, -13.3, 0)), False)
sketch11.addGeometry(Part.LineSegment(App.Vector(-11.9, -13.3, 0), App.Vector(-12.3, -13, 0)), False)
sketch11.addGeometry(Part.LineSegment(App.Vector(-12.3, -13, 0), App.Vector(-12.3, -15, 0)), False)
sketch11.addGeometry(Part.LineSegment(App.Vector(0.2, -15, 0), App.Vector(-12.3, -15, 0)), True)  # axis
sketch11.addConstraint(Sketcher.Constraint("Coincident", 0, 2, 1, 1))
sketch11.addConstraint(Sketcher.Constraint("Coincident", 1, 2, 2, 1))
sketch11.addConstraint(Sketcher.Constraint("Coincident", 2, 2, 3, 1))
sketch11.addConstraint(Sketcher.Constraint("Coincident", 3, 2, 4, 1))
sketch11.addConstraint(Sketcher.Constraint("Coincident", 4, 2, 0, 1))
sketch11.addConstraint(Sketcher.Constraint("Horizontal", 0))
sketch11.addConstraint(Sketcher.Constraint("Horizontal", 2))
sketch11.addConstraint(Sketcher.Constraint("Vertical", 4))
sketch11.addConstraint(Sketcher.Constraint("Horizontal", 5))
sketch11.addConstraint(Sketcher.Constraint("Coincident", 5, 1, 0, 2))
sketch11.addConstraint(Sketcher.Constraint("Vertical", 3, 2, 5, 2))
sketch11.addConstraint(Sketcher.Constraint("Angle", 1, Q("121 deg")))
sketch11.addConstraint(Sketcher.Constraint("Angle", 3, Q("135 deg")))
sketch11.addConstraint(Sketcher.Constraint("DistanceY", 0, 2, -1, 1, Q("15 mm")))
sketch11.addConstraint(Sketcher.Constraint("DistanceX", 1, 2, -1, 1, Q("0.8 mm")))
sketch11.addConstraint(Sketcher.Constraint("DistanceX", 3, 2, -1, 1, Q("12.3 mm")))
sketch11.addConstraint(Sketcher.Constraint("DistanceX", 2, 2, 2, 1, Q("11.125 mm")))
sketch11.addConstraint(Sketcher.Constraint("DistanceY", 4, 2, 4, 1, Q("2.025 mm")))
groove3 = body.newObject("PartDesign::Groove", "Groove002")
groove3.Profile = sketch11
groove3.ReferenceAxis = (sketch11, ["Axis0"])
groove3.setExpression("Angle", "Params.groove3_angle")

# Sketch on YZ plane
sketch12 = body.newObject("Sketcher::SketchObject", "Sketch011")
sketch12.AttachmentSupport = (doc.getObject("YZ_Plane"), [""])
sketch12.MapMode = "FlatFace"
sketch12.AttachmentOffset = App.Placement(App.Vector(0, 0, -14), App.Rotation())
sketch12.addGeometry(Part.LineSegment(App.Vector(-12.3, -15, 0), App.Vector(0.2, -15, 0)), False)
sketch12.addGeometry(Part.LineSegment(App.Vector(0.2, -15, 0), App.Vector(-0.8, -13.3, 0)), False)
sketch12.addGeometry(Part.LineSegment(App.Vector(-0.8, -13.3, 0), App.Vector(-11.9, -13.3, 0)), False)
sketch12.addGeometry(Part.LineSegment(App.Vector(-11.9, -13.3, 0), App.Vector(-12.3, -13, 0)), False)
sketch12.addGeometry(Part.LineSegment(App.Vector(-12.3, -13, 0), App.Vector(-12.3, -15, 0)), False)
sketch12.addGeometry(Part.LineSegment(App.Vector(0.2, -15, 0), App.Vector(-12.3, -15, 0)), True)  # axis
sketch12.addConstraint(Sketcher.Constraint("Coincident", 0, 2, 1, 1))
sketch12.addConstraint(Sketcher.Constraint("Coincident", 1, 2, 2, 1))
sketch12.addConstraint(Sketcher.Constraint("Coincident", 2, 2, 3, 1))
sketch12.addConstraint(Sketcher.Constraint("Coincident", 3, 2, 4, 1))
sketch12.addConstraint(Sketcher.Constraint("Coincident", 4, 2, 0, 1))
sketch12.addConstraint(Sketcher.Constraint("Horizontal", 0))
sketch12.addConstraint(Sketcher.Constraint("Horizontal", 2))
sketch12.addConstraint(Sketcher.Constraint("Vertical", 4))
sketch12.addConstraint(Sketcher.Constraint("Horizontal", 5))
sketch12.addConstraint(Sketcher.Constraint("Coincident", 5, 1, 0, 2))
sketch12.addConstraint(Sketcher.Constraint("Vertical", 3, 2, 5, 2))
sketch12.addConstraint(Sketcher.Constraint("Angle", 1, Q("121 deg")))
sketch12.addConstraint(Sketcher.Constraint("Angle", 3, Q("135 deg")))
sketch12.addConstraint(Sketcher.Constraint("DistanceY", 0, 2, -1, 1, Q("15 mm")))
sketch12.addConstraint(Sketcher.Constraint("DistanceX", 1, 2, -1, 1, Q("0.8 mm")))
sketch12.addConstraint(Sketcher.Constraint("DistanceX", 3, 2, -1, 1, Q("12.3 mm")))
sketch12.addConstraint(Sketcher.Constraint("DistanceX", 2, 2, 2, 1, Q("11.125 mm")))
sketch12.addConstraint(Sketcher.Constraint("DistanceY", 4, 2, 4, 1, Q("2.025 mm")))
groove4 = body.newObject("PartDesign::Groove", "Groove003")
groove4.Profile = sketch12
groove4.ReferenceAxis = (sketch12, ["Axis0"])
groove4.setExpression("Angle", "Params.groove4_angle")

# Sketch on XZ plane
sketch13 = body.newObject("Sketcher::SketchObject", "Sketch012")
sketch13.AttachmentSupport = (doc.getObject("XZ_Plane"), [""])
sketch13.MapMode = "FlatFace"
sketch13.AttachmentOffset = App.Placement(App.Vector(0, 0, 14.3), App.Rotation())
sketch13.addGeometry(Part.Circle(App.Vector(0, -44, 0), App.Vector(0, 0, 1), 9), False)
sketch13.addConstraint(Sketcher.Constraint("PointOnObject", 0, 3, -2))
sketch13.addConstraint(Sketcher.Constraint("Diameter", 0, Q("18.8 mm")))
sketch13.addConstraint(Sketcher.Constraint("DistanceY", 0, 3, -1, 1, Q("44 mm")))
sketch13.setExpression("Constraints[1]", "Params.sketch13_diameter")
pocket4 = body.newObject("PartDesign::Pocket", "Pocket003")
pocket4.Profile = sketch13
pocket4.setExpression("Length", "Params.pocket4_length")

doc.recompute()
